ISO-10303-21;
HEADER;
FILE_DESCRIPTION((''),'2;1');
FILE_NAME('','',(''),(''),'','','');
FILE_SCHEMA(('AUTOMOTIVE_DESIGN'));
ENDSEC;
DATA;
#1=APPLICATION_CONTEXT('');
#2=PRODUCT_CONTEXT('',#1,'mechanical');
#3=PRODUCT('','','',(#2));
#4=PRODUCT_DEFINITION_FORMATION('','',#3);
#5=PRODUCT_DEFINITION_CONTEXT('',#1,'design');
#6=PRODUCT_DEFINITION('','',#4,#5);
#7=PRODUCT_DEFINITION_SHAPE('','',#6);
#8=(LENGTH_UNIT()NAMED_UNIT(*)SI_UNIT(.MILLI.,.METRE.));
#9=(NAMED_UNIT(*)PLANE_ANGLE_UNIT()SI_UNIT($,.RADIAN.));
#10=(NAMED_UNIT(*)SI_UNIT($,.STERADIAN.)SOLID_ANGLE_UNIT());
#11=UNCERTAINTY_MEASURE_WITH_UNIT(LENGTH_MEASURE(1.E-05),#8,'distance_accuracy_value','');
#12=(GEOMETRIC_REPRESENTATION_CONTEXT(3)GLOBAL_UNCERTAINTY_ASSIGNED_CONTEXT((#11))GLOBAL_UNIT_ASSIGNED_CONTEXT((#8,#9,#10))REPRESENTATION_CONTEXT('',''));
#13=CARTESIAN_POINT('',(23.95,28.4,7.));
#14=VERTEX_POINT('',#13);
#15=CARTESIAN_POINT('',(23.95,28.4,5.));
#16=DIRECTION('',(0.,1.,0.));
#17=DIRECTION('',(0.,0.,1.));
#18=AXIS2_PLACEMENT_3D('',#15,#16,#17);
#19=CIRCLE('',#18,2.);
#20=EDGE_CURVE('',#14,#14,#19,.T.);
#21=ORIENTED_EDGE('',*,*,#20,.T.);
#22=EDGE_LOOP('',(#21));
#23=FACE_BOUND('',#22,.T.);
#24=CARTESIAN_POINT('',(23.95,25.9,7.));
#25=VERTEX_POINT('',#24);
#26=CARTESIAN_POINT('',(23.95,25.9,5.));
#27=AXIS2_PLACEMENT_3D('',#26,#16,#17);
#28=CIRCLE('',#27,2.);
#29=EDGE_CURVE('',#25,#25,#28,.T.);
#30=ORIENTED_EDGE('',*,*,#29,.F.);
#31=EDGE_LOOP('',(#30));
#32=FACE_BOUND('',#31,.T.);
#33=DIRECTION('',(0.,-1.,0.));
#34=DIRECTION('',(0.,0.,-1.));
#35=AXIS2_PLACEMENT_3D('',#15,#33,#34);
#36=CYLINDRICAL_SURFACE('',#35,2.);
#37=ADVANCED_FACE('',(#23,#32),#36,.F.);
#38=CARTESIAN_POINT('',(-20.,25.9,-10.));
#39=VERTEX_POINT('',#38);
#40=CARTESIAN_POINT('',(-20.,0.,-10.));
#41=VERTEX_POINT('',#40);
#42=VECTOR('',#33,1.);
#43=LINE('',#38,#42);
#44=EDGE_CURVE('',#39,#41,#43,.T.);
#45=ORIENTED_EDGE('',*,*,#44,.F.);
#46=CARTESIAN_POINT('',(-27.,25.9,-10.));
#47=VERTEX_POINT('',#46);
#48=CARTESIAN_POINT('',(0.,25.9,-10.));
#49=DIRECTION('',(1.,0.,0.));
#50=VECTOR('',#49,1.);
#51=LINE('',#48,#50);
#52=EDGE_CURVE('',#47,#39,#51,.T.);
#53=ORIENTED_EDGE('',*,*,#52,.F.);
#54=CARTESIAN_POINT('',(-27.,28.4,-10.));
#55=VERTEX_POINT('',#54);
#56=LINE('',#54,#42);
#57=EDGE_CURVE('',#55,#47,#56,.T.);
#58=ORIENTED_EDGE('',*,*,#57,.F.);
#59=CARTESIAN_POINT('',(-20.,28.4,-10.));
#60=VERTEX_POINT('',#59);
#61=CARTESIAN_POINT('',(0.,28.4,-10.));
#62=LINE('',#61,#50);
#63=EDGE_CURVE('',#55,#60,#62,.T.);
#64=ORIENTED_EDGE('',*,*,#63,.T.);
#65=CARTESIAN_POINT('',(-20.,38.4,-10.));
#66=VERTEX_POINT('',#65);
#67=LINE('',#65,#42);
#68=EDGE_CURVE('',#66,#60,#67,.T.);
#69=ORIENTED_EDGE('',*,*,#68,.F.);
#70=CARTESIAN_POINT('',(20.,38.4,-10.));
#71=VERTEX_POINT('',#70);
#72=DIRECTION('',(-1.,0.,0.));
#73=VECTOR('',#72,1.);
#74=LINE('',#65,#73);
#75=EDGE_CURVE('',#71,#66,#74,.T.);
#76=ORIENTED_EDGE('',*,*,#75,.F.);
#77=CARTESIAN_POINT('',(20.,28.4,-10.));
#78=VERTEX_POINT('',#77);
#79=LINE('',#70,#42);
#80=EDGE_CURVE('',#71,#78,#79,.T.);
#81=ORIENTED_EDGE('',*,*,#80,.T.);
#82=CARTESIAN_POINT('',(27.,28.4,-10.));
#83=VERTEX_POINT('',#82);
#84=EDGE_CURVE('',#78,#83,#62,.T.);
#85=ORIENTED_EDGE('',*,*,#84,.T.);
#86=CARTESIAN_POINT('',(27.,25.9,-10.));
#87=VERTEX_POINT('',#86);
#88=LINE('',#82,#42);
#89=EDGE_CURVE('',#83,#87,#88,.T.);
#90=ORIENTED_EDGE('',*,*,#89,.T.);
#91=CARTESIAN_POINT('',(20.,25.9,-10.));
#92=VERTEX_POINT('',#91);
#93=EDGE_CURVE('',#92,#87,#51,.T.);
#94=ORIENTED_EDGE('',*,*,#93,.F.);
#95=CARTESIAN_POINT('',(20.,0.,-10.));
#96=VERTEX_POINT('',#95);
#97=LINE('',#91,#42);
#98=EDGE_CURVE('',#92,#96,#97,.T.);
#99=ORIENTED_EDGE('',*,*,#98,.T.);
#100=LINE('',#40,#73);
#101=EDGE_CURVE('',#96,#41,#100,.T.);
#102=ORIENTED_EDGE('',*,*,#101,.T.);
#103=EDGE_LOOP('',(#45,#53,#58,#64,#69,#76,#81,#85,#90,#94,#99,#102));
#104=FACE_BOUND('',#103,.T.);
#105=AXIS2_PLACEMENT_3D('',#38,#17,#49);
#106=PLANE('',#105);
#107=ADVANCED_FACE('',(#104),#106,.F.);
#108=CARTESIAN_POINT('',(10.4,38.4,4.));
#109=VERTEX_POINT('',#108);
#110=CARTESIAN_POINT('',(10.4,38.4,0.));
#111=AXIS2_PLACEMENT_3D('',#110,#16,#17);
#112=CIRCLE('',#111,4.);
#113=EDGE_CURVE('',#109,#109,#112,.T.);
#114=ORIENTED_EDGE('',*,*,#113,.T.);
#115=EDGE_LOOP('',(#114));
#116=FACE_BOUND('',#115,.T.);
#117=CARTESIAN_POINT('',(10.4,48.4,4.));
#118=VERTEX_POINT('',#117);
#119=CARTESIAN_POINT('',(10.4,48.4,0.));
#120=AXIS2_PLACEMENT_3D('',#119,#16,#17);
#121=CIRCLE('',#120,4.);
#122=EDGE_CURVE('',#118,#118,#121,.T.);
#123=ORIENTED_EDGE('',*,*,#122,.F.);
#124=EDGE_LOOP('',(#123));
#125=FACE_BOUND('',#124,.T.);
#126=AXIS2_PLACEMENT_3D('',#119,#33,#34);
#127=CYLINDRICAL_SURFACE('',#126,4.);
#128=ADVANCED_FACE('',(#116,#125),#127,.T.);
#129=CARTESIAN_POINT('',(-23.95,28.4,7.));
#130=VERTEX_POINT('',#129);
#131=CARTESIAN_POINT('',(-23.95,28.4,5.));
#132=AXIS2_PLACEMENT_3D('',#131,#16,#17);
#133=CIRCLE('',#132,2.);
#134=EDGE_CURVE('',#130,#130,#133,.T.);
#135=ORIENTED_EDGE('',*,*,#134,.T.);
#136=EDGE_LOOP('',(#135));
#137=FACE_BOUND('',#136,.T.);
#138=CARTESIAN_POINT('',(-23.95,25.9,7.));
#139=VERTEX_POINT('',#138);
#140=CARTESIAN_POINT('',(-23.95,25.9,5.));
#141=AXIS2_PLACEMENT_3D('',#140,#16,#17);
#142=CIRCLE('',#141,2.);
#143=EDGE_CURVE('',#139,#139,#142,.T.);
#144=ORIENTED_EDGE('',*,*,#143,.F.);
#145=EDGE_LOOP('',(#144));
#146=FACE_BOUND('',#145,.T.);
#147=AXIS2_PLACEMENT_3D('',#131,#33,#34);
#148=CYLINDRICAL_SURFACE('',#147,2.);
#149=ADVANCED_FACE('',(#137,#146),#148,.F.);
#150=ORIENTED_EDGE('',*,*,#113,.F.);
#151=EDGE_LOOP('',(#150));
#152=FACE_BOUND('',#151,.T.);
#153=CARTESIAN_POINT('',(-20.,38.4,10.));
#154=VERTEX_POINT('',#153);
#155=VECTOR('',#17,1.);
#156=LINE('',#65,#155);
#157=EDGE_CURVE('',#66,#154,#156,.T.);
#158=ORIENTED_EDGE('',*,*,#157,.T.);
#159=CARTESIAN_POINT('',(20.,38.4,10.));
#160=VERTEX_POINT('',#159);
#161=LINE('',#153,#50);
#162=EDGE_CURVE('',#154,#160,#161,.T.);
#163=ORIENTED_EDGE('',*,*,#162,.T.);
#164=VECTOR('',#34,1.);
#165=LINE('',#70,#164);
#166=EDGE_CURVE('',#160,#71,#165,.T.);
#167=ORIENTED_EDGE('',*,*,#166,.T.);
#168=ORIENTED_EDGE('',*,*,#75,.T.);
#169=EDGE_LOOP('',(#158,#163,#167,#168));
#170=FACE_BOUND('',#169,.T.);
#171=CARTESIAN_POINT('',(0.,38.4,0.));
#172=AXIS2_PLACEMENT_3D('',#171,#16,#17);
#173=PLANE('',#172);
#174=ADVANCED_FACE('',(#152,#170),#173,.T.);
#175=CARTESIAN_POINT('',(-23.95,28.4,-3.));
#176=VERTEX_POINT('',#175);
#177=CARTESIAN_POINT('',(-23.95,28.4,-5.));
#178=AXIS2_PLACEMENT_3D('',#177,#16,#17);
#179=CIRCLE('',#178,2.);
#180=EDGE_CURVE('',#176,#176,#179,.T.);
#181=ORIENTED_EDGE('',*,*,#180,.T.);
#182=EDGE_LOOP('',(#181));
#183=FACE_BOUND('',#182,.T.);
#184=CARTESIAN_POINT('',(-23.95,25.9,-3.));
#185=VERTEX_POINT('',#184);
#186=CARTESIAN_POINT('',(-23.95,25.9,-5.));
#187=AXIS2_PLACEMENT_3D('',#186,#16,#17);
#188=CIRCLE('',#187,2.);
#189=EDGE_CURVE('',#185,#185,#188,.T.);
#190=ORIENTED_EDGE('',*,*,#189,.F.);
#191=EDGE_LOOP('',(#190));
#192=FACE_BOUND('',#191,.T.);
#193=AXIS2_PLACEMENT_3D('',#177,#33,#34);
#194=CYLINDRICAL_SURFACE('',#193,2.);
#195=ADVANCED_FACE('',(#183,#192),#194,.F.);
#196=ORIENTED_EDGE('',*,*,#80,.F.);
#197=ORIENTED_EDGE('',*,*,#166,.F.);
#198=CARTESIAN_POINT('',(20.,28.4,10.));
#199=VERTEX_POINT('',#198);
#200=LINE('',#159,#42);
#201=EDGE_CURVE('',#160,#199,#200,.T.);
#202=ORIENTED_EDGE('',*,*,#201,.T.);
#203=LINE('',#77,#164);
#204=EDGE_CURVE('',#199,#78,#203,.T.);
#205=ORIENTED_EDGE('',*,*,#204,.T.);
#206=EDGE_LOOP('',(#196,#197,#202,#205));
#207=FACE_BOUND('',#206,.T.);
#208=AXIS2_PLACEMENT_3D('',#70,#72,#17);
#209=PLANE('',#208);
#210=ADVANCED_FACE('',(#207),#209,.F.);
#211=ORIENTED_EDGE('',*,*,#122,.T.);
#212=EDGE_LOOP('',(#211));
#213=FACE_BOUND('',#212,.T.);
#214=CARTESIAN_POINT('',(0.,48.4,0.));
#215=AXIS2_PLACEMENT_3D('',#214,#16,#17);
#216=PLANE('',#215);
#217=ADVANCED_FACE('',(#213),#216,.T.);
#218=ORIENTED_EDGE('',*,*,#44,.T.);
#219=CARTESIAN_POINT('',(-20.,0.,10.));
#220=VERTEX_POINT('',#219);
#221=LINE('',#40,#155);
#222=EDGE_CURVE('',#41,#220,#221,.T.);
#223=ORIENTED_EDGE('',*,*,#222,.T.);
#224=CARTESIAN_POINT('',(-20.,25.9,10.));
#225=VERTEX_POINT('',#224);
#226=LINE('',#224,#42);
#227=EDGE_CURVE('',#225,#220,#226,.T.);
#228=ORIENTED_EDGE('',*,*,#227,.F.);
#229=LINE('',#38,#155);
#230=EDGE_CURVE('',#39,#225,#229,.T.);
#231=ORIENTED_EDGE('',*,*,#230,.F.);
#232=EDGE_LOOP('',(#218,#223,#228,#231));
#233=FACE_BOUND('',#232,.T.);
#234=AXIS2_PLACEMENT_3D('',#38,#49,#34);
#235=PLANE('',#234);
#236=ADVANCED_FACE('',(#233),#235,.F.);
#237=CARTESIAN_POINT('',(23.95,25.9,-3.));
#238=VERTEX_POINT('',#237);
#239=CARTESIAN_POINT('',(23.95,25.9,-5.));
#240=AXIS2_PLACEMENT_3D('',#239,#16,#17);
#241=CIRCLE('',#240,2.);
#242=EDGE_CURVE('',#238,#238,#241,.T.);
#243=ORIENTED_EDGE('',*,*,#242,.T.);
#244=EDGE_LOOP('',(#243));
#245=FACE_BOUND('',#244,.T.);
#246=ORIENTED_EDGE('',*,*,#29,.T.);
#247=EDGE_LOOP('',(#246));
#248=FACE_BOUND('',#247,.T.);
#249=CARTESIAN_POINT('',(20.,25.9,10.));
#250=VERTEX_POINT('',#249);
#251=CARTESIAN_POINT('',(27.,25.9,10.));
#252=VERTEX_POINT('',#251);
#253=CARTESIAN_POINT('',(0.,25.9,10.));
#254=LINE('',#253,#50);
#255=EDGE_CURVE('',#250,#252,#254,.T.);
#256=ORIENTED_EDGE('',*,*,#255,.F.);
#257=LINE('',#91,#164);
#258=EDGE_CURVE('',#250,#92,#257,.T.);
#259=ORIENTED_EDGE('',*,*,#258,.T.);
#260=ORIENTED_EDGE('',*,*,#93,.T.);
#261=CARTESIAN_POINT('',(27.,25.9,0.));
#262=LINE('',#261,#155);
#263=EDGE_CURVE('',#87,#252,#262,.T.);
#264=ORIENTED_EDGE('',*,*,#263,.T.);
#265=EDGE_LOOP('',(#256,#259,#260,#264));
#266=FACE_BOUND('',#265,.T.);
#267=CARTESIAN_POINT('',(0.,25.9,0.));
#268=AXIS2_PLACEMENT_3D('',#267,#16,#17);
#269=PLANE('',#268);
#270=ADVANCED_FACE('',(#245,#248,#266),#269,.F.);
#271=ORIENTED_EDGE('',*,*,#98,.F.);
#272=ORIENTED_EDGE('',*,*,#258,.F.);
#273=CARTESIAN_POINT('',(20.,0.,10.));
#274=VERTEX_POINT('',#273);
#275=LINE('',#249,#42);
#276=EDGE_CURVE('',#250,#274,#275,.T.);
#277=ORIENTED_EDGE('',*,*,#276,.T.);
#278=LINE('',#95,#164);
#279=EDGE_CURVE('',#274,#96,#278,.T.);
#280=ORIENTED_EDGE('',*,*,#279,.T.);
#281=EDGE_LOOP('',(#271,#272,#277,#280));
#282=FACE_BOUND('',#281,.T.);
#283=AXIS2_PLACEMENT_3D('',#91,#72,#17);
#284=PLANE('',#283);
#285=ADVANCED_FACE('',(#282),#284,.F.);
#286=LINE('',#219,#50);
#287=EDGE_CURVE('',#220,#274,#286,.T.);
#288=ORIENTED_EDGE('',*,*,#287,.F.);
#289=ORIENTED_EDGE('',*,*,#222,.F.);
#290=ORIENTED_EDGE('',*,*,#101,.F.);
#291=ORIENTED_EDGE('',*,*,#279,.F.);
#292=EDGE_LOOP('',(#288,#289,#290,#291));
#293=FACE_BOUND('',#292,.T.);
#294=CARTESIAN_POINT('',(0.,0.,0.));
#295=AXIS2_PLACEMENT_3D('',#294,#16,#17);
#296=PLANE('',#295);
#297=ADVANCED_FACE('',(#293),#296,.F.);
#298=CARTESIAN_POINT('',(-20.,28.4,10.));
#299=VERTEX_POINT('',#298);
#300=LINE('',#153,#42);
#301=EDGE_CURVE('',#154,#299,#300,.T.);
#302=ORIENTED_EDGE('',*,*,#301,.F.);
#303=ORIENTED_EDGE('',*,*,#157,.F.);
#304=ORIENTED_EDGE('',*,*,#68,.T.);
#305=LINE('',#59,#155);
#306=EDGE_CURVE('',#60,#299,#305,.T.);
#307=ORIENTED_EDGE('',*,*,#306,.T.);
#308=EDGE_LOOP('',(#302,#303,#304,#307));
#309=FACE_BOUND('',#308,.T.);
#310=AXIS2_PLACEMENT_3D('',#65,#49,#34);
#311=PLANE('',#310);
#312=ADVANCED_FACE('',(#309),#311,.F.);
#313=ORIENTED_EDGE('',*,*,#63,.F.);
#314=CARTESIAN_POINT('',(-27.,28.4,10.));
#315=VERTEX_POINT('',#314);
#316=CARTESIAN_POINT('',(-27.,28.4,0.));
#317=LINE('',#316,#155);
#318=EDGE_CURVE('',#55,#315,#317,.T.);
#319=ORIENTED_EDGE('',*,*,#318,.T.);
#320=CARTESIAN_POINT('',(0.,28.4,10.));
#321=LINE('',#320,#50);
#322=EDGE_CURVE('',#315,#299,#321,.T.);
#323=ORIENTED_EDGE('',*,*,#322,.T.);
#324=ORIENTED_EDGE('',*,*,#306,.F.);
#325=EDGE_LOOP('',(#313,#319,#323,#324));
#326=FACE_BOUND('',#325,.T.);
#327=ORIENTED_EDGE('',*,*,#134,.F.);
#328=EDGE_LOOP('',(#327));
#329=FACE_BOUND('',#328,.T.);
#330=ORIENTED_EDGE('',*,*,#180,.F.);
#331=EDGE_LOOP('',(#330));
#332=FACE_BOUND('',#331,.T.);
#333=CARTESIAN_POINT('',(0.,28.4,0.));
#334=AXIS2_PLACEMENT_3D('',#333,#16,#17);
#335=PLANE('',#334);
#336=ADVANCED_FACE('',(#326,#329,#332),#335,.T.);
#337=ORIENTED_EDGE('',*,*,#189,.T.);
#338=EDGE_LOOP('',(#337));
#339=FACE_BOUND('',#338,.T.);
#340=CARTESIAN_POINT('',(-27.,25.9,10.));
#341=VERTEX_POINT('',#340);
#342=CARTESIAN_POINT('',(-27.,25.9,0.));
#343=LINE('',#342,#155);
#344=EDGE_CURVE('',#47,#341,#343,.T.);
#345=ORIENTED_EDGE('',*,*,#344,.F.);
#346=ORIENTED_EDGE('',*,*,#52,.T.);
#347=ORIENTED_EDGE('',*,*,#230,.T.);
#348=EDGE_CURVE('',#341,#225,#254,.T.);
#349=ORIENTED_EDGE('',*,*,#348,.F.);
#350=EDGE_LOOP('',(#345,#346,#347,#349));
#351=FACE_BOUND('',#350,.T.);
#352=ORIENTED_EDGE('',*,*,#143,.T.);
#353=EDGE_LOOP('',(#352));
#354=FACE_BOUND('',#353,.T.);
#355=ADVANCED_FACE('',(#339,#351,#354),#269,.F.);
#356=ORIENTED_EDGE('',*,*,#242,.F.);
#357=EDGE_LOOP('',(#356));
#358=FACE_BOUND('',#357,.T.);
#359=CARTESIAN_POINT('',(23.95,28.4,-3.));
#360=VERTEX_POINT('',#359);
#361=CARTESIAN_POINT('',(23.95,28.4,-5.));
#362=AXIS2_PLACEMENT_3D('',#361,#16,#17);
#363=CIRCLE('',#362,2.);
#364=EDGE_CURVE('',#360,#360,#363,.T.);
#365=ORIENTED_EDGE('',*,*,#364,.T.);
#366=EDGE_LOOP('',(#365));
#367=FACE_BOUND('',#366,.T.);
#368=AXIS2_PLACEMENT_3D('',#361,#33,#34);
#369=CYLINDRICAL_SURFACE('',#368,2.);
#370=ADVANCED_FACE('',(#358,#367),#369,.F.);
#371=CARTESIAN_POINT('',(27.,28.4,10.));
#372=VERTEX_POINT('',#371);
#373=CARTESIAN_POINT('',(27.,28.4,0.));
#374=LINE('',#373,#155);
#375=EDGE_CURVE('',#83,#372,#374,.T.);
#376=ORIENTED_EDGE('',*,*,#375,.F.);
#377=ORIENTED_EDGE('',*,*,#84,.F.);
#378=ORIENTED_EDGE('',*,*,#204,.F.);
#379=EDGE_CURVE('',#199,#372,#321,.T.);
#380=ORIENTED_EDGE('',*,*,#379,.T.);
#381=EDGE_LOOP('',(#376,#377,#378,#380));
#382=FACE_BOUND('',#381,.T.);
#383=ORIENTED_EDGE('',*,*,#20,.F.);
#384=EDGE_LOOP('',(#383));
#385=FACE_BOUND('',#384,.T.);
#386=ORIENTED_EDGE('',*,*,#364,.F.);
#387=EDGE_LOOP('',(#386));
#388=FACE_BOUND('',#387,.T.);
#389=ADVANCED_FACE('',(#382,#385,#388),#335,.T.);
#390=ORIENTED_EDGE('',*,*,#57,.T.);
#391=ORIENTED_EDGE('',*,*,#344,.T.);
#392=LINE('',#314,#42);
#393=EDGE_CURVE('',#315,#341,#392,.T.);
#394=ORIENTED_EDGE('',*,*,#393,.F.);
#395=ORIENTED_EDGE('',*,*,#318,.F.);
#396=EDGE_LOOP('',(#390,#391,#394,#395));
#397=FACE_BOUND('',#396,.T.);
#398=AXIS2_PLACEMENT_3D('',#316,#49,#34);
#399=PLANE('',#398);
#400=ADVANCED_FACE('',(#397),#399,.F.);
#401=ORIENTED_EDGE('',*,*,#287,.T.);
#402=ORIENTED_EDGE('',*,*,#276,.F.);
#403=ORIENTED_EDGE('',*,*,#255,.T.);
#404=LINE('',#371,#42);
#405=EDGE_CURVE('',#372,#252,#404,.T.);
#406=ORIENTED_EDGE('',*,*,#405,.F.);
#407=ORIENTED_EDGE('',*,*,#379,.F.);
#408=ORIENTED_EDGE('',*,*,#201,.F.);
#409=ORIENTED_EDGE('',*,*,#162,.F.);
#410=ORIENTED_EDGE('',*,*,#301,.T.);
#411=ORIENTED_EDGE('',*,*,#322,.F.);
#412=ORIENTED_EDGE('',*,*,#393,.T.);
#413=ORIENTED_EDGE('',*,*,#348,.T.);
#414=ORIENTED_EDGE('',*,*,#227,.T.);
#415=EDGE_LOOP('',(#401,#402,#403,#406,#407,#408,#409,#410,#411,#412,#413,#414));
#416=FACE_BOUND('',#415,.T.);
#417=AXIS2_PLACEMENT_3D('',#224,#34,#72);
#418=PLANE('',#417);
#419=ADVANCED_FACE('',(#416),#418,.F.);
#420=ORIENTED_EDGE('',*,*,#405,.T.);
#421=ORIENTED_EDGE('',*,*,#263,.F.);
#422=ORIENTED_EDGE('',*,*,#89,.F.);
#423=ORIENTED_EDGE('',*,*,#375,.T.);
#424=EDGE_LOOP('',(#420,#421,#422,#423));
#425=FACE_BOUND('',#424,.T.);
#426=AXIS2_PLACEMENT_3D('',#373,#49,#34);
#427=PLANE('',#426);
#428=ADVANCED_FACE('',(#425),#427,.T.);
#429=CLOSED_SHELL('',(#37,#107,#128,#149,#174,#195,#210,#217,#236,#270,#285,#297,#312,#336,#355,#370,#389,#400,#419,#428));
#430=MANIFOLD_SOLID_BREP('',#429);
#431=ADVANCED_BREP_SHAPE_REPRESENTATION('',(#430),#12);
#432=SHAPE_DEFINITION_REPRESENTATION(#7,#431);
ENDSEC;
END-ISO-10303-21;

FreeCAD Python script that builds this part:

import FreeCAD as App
import Part
import Sketcher

V = App.Vector
Q = App.Units.Quantity


def add_polygon(sketch, points):
    """Adds a closed chain of lines whose ends are joined by coincident constraints."""
    first, n = sketch.GeometryCount, len(points)
    for a, b in zip(points, points[1:] + points[:1]):
        sketch.addGeometry(Part.LineSegment(App.Vector(*a, 0), App.Vector(*b, 0)), False)
    for i in range(n):
        sketch.addConstraint(Sketcher.Constraint("Coincident", first + i, 2, first + (i + 1) % n, 1))

doc = App.newDocument("Part")
body = doc.addObject("PartDesign::Body", "Body")

sketch1 = body.newObject("Sketcher::SketchObject", "Sketch")
sketch1.AttachmentSupport = (doc.getObject("XZ_Plane"), [""])
sketch1.MapMode = "FlatFace"
add_polygon(sketch1, [(-20, -10), (-20, 10), (20, 10), (20, -10)])
sketch1.addConstraint(Sketcher.Constraint("Vertical", 0))
sketch1.addConstraint(Sketcher.Constraint("Horizontal", 1))
sketch1.addConstraint(Sketcher.Constraint("Vertical", 2))
sketch1.addConstraint(Sketcher.Constraint("Horizontal", 3))
sketch1.addConstraint(Sketcher.Constraint("Symmetric", 0, 2, 2, 2, -1, 1))
sketch1.addConstraint(Sketcher.Constraint("DistanceX", 1, 1, 1, 2, Q("40 mm")))
sketch1.addConstraint(Sketcher.Constraint("DistanceY", 0, 1, 0, 2, Q("20 mm")))
pad1 = body.newObject("PartDesign::Pad", "Pad")
pad1.Profile = sketch1
pad1.Length = 25.9
pad1.Reversed = True

sketch2 = body.newObject("Sketcher::SketchObject", "Sketch001")
sketch2.AttachmentSupport = (doc.getObject("XZ_Plane"), [""])
sketch2.MapMode = "FlatFace"
sketch2.AttachmentOffset = App.Placement(V(0, 0, -25.9), App.Rotation())
add_polygon(sketch2, [(-27, -10), (-27, 10), (27, 10), (27, -10)])
sketch2.addGeometry(Part.Circle(V(-23.95, 5, 0), V(0, 0, 1), 2), False)
sketch2.addGeometry(Part.Circle(V(23.95, 5, 0), V(0, 0, 1), 2), False)
sketch2.addGeometry(Part.Circle(V(-23.95, -5, 0), V(0, 0, 1), 2), False)
sketch2.addGeometry(Part.Circle(V(23.95, -5, 0), V(0, 0, 1), 2), False)
sketch2.addConstraint(Sketcher.Constraint("Vertical", 0))
sketch2.addConstraint(Sketcher.Constraint("Horizontal", 1))
sketch2.addConstraint(Sketcher.Constraint("Vertical", 2))
sketch2.addConstraint(Sketcher.Constraint("Horizontal", 3))
sketch2.addConstraint(Sketcher.Constraint("Equal", 4, 5))
sketch2.addConstraint(Sketcher.Constraint("Equal", 5, 6))
sketch2.addConstraint(Sketcher.Constraint("Equal", 6, 7))
sketch2.addConstraint(Sketcher.Constraint("Symmetric", 5, 3, 6, 3, -1, 1))
sketch2.addConstraint(Sketcher.Constraint("Symmetric", 4, 3, 7, 3, -1, 1))
sketch2.addConstraint(Sketcher.Constraint("Symmetric", 0, 2, 2, 2, -1, 1))
sketch2.addConstraint(Sketcher.Constraint("Symmetric", 4, 3, 5, 3, -2))
sketch2.addConstraint(Sketcher.Constraint("Diameter", 4, Q("4 mm")))
sketch2.addConstraint(Sketcher.Constraint("DistanceX", 1, 1, 1, 2, Q("54 mm")))
sketch2.addConstraint(Sketcher.Constraint("DistanceY", 0, 1, 0, 2, Q("20 mm")))
sketch2.addConstraint(Sketcher.Constraint("DistanceY", -1, 1, 4, 3, Q("5 mm")))
sketch2.addConstraint(Sketcher.Constraint("DistanceX", 4, 3, 5, 3, Q("47.9 mm")))
pad2 = body.newObject("PartDesign::Pad", "Pad001")
pad2.Profile = sketch2
pad2.Length = 2.5
pad2.Reversed = True

sketch3 = body.newObject("Sketcher::SketchObject", "Sketch002")
sketch3.AttachmentSupport = (doc.getObject("XZ_Plane"), [""])
sketch3.MapMode = "FlatFace"
sketch3.AttachmentOffset = App.Placement(V(0, 0, -28.4), App.Rotation())
add_polygon(sketch3, [(-20, -10), (-20, 10), (20, 10), (20, -10)])
sketch3.addConstraint(Sketcher.Constraint("Vertical", 0))
sketch3.addConstraint(Sketcher.Constraint("Horizontal", 1))
sketch3.addConstraint(Sketcher.Constraint("Vertical", 2))
sketch3.addConstraint(Sketcher.Constraint("Horizontal", 3))
sketch3.addConstraint(Sketcher.Constraint("Symmetric", 0, 2, 2, 2, -1, 1))
sketch3.addConstraint(Sketcher.Constraint("DistanceX", 1, 1, 1, 2, Q("40 mm")))
sketch3.addConstraint(Sketcher.Constraint("DistanceY", 0, 1, 0, 2, Q("20 mm")))
pad3 = body.newObject("PartDesign::Pad", "Pad002")
pad3.Profile = sketch3
pad3.Length = 10
pad3.Reversed = True

sketch4 = body.newObject("Sketcher::SketchObject", "Sketch003")
sketch4.AttachmentSupport = (doc.getObject("XZ_Plane"), [""])
sketch4.MapMode = "FlatFace"
sketch4.AttachmentOffset = App.Placement(V(0, 0, -38.4), App.Rotation())
sketch4.addGeometry(Part.Circle(V(10.4, 0, 0), V(0, 0, 1), 4), False)
sketch4.addConstraint(Sketcher.Constraint("PointOnObject", 0, 3, -1))
sketch4.addConstraint(Sketcher.Constraint("Diameter", 0, Q("8 mm")))
sketch4.addConstraint(Sketcher.Constraint("DistanceX", -1, 1, 0, 3, Q("10.4 mm")))
pad4 = body.newObject("PartDesign::Pad", "Pad003")
pad4.Profile = sketch4
pad4.Length = 10
pad4.Reversed = True

doc.recompute()
